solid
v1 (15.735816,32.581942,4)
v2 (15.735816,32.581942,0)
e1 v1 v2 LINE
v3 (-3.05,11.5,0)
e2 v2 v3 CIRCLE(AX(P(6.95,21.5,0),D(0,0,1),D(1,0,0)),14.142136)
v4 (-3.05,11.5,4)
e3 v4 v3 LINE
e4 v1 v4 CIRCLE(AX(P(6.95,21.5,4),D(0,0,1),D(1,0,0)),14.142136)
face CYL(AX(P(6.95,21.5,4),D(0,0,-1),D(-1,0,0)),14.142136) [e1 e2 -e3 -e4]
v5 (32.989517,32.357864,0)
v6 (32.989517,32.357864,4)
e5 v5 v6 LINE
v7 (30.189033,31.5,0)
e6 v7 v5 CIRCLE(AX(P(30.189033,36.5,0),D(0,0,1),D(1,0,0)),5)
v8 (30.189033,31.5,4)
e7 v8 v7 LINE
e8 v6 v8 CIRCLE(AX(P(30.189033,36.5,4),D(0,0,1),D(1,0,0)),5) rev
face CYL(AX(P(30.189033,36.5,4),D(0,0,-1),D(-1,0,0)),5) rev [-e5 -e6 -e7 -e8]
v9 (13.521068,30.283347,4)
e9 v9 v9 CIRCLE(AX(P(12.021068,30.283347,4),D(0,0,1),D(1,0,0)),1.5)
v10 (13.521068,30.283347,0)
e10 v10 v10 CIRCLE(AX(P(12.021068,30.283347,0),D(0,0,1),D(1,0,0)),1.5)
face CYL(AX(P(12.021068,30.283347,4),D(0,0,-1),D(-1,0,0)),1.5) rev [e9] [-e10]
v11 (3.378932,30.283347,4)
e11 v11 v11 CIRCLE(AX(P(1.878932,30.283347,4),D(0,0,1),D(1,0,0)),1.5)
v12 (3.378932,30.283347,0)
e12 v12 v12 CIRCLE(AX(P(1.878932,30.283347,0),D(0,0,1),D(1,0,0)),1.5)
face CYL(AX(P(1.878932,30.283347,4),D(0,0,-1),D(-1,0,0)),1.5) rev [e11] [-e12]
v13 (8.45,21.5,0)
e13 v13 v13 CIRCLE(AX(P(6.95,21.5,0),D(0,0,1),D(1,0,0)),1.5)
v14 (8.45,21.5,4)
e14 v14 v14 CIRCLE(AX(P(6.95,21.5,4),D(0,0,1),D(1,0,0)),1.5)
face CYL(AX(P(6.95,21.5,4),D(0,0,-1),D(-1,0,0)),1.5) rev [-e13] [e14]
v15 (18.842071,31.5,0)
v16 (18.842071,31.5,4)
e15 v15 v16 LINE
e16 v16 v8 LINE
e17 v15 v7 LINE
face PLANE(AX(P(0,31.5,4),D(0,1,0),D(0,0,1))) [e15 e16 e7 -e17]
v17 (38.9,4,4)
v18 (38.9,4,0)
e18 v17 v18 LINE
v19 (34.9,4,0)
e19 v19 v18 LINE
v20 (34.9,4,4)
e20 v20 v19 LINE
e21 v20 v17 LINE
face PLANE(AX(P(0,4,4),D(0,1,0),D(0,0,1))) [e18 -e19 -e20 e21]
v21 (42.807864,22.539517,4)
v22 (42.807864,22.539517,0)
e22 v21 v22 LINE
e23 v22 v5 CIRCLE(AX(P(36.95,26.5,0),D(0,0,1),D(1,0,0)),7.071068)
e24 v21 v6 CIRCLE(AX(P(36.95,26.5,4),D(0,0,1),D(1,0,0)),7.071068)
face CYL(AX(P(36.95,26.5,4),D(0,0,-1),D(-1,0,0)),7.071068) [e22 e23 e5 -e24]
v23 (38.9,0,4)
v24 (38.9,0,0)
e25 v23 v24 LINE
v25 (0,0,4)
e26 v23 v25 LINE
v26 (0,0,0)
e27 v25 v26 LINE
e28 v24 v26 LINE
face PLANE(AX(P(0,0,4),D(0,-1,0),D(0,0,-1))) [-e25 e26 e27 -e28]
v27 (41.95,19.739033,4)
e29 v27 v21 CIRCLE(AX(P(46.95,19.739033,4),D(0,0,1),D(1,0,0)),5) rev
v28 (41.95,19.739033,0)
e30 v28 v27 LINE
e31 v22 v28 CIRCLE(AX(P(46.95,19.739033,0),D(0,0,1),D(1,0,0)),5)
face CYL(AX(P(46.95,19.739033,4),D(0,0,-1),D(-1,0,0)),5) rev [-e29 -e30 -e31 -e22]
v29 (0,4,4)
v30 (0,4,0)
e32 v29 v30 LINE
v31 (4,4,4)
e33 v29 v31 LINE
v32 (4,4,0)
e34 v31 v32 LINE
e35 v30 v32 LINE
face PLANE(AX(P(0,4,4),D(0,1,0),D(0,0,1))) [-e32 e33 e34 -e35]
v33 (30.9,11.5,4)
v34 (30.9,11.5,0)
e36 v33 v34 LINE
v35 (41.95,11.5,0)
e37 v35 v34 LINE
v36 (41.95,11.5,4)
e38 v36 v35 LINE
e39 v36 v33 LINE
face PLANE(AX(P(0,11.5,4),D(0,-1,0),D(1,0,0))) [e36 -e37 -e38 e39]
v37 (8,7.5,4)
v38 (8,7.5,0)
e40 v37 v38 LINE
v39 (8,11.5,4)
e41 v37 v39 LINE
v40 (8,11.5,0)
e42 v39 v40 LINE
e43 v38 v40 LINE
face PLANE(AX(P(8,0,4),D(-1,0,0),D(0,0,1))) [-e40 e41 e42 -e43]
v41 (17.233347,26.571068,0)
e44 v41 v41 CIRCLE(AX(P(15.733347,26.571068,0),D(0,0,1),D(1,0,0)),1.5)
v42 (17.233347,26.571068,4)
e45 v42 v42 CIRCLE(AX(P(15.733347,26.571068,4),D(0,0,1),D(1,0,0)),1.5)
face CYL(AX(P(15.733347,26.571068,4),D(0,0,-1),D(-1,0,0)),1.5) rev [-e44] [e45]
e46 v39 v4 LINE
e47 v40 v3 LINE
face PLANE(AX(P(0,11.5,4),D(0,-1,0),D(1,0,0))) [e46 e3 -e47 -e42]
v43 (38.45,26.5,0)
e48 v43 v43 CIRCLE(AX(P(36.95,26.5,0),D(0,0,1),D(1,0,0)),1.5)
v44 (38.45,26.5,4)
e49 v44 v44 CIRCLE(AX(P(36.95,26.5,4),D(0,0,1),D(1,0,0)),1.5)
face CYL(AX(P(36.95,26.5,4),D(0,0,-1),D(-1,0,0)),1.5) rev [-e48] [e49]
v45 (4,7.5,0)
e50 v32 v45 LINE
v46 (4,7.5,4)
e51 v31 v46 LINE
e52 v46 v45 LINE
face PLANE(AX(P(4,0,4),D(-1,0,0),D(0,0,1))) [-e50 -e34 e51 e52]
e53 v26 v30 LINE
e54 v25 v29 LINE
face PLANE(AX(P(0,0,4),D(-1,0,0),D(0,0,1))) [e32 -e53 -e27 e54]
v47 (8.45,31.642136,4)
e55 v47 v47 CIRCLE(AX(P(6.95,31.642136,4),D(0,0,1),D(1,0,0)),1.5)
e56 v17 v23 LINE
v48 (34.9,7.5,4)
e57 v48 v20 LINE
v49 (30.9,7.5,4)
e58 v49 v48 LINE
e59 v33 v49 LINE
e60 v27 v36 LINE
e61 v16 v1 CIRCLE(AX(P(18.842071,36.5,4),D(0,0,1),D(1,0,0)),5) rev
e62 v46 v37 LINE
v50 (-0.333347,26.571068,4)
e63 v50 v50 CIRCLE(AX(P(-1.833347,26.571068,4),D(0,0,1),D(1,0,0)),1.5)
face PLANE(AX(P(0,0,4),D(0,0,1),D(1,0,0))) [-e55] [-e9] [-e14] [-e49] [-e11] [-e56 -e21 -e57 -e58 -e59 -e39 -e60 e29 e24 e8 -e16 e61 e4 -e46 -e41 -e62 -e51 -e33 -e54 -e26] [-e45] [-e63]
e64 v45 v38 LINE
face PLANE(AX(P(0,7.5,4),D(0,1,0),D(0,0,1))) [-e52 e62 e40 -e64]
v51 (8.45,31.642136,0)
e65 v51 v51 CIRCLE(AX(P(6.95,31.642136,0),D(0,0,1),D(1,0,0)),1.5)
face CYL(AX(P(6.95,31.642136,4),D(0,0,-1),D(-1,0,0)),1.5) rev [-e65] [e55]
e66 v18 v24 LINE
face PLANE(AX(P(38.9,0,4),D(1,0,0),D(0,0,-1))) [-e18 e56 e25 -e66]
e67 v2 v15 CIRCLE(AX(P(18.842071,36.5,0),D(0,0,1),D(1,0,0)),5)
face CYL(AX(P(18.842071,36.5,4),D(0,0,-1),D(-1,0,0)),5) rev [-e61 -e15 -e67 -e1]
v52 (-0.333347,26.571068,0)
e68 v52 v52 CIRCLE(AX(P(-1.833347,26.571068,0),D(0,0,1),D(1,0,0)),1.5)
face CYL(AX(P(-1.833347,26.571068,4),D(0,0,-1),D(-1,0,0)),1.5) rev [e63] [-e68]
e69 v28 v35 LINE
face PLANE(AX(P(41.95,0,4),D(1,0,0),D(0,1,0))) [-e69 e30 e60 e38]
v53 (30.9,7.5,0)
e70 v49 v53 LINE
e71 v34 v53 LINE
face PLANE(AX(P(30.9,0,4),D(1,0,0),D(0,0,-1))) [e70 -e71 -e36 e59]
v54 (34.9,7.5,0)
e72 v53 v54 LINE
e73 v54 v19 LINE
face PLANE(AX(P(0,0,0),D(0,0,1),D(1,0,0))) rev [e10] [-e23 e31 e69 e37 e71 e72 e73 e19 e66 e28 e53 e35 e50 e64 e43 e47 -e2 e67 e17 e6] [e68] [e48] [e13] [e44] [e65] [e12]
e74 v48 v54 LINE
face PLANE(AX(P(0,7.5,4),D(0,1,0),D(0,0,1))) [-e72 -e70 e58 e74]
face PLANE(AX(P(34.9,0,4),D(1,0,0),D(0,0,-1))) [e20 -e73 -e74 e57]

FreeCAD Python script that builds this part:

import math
import FreeCAD as App
import Part
import Sketcher

V = App.Vector


def edges_at(feature, points):
    """Names of the edges that pass closest to the given points."""
    edges = feature.Shape.Edges
    near = lambda p: min(range(len(edges)), key=lambda i: edges[i].distToShape(Part.Vertex(*p))[0])
    return sorted({f"Edge{near(p) + 1}" for p in points})

doc = App.newDocument("Part")
body = doc.addObject("PartDesign::Body", "Body")

sketch1 = body.newObject("Sketcher::SketchObject", "Sketch")
sketch1.AttachmentSupport = (doc.getObject("XY_Plane"), [""])
sketch1.MapMode = "FlatFace"
sketch1.addGeometry([
    Part.LineSegment(V(0, 4, 0), V(0, 0, 0)),
    Part.LineSegment(V(0, 0, 0), V(38.9, 0, 0)),
    Part.LineSegment(V(38.9, 0, 0), V(38.9, 4, 0)),
    Part.LineSegment(V(38.9, 4, 0), V(34.9, 4, 0)),
    Part.LineSegment(V(34.9, 4, 0), V(34.9, 7.5, 0)),
    Part.LineSegment(V(34.9, 7.5, 0), V(30.9, 7.5, 0)),
    Part.LineSegment(V(30.9, 7.5, 0), V(30.9, 11.5, 0)),
    Part.LineSegment(V(30.9, 11.5, 0), V(42, 11.5, 0)),
    Part.LineSegment(V(42, 11.5, 0), V(42, 21.5, 0)),
    Part.ArcOfCircle(Part.Circle(V(37, 26.5, 0), V(0, 0, 1), 7.1), math.radians(-45), math.radians(135)),
    Part.LineSegment(V(31.9, 31.5, 0), V(16.9, 31.5, 0)),
    Part.ArcOfCircle(Part.Circle(V(7, 21.5, 0), V(0, 0, 1), 14.1), math.radians(45), math.radians(225)),
    Part.LineSegment(V(-3, 11.5, 0), V(8, 11.5, 0)),
    Part.LineSegment(V(8, 11.5, 0), V(8, 7.5, 0)),
    Part.LineSegment(V(8, 7.5, 0), V(4, 7.5, 0)),
    Part.LineSegment(V(4, 7.5, 0), V(4, 4, 0)),
    Part.LineSegment(V(4, 4, 0), V(0, 4, 0)),
    Part.Circle(V(7, 21.5, 0), V(0, 0, 1), 1.5),
    Part.Circle(V(-1.8, 26.6, 0), V(0, 0, 1), 1.5),
    Part.Circle(V(15.7, 26.6, 0), V(0, 0, 1), 1.5),
    Part.Circle(V(37, 26.5, 0), V(0, 0, 1), 1.5),
    Part.Circle(V(1.9, 30.3, 0), V(0, 0, 1), 1.5),
    Part.Circle(V(7, 31.6, 0), V(0, 0, 1), 1.5),
    Part.Circle(V(12, 30.3, 0), V(0, 0, 1), 1.5),
], False)
sketch1.addConstraint([
    Sketcher.Constraint("Coincident", 0, 2, 1, 1),
    Sketcher.Constraint("Coincident", 1, 2, 2, 1),
    Sketcher.Constraint("Coincident", 2, 2, 3, 1),
    Sketcher.Constraint("Coincident", 3, 2, 4, 1),
    Sketcher.Constraint("Coincident", 4, 2, 5, 1),
    Sketcher.Constraint("Coincident", 5, 2, 6, 1),
    Sketcher.Constraint("Coincident", 6, 2, 7, 1),
    Sketcher.Constraint("Coincident", 7, 2, 8, 1),
    Sketcher.Constraint("Coincident", 8, 2, 9, 1),
    Sketcher.Constraint("Coincident", 9, 2, 10, 1),
    Sketcher.Constraint("Coincident", 10, 2, 11, 1),
    Sketcher.Constraint("Coincident", 11, 2, 12, 1),
    Sketcher.Constraint("Coincident", 12, 2, 13, 1),
    Sketcher.Constraint("Coincident", 13, 2, 14, 1),
    Sketcher.Constraint("Coincident", 14, 2, 15, 1),
    Sketcher.Constraint("Coincident", 15, 2, 16, 1),
    Sketcher.Constraint("Coincident", 16, 2, 0, 1),
    Sketcher.Constraint("Vertical", 0),
    Sketcher.Constraint("Horizontal", 1),
    Sketcher.Constraint("Vertical", 2),
    Sketcher.Constraint("Horizontal", 3),
    Sketcher.Constraint("Vertical", 4),
    Sketcher.Constraint("Horizontal", 5),
    Sketcher.Constraint("Vertical", 6),
    Sketcher.Constraint("Horizontal", 7),
    Sketcher.Constraint("Vertical", 8),
    Sketcher.Constraint("Horizontal", 10),
    Sketcher.Constraint("Horizontal", 12),
    Sketcher.Constraint("Vertical", 13),
    Sketcher.Constraint("Horizontal", 14),
    Sketcher.Constraint("Vertical", 15),
    Sketcher.Constraint("Horizontal", 16),
    Sketcher.Constraint("Coincident", 0, 2, -1, 1),
    Sketcher.Constraint("Coincident", 17, 3, 11, 3),
    Sketcher.Constraint("Coincident", 20, 3, 9, 3),
    Sketcher.Constraint("Equal", 17, 18),
    Sketcher.Constraint("Equal", 18, 19),
    Sketcher.Constraint("Equal", 19, 20),
    Sketcher.Constraint("Equal", 20, 21),
    Sketcher.Constraint("Equal", 21, 22),
    Sketcher.Constraint("Equal", 22, 23),
    Sketcher.Constraint("Horizontal", 18, 3, 19, 3),
    Sketcher.Constraint("Horizontal", 21, 3, 23, 3),
    Sketcher.Constraint("Horizontal", 17, 3, 8, 2),
    Sketcher.Constraint("Horizontal", 7, 2, 11, 2),
    Sketcher.Constraint("Horizontal", 5, 2, 13, 2),
    Sketcher.Constraint("Horizontal", 3, 2, 15, 2),
    Sketcher.Constraint("Vertical", 17, 3, 22, 3),
    Sketcher.Constraint("Equal", 3, 5),
    Sketcher.Constraint("Equal", 7, 12),
    Sketcher.Constraint("Equal", 5, 14),
    Sketcher.Constraint("Equal", 14, 16),
    Sketcher.Constraint("Equal", 16, 0),
    Sketcher.Constraint("Equal", 2, 6),
    Sketcher.Constraint("Diameter", 17, 3.0),
    Sketcher.Constraint("DistanceX", 3, 2, 3, 1, 4.0),
    Sketcher.Constraint("DistanceX", 10, 2, 10, 1, 15.0),
    Sketcher.Constraint("DistanceY", 8, 1, 8, 2, 10.0),
    Sketcher.Constraint("DistanceX", 1, 1, 1, 2, 38.9),
    Sketcher.Constraint("DistanceY", 4, 1, 4, 2, 3.5),
    Sketcher.Constraint("DistanceX", 11, 3, 9, 3, 30.0),
    Sketcher.Constraint("DistanceY", 11, 3, 9, 3, 5.0),
    Sketcher.Constraint("DistanceX", 9, 3, 8, 2, 5.0),
    Sketcher.Constraint("DistanceX", 9, 2, 9, 3, 5.0),
    Sketcher.Constraint("DistanceX", 18, 3, 21, 3, 3.712279),
    Sketcher.Constraint("DistanceY", 18, 3, 21, 3, 3.712279),
    Sketcher.Constraint("DistanceY", 21, 3, 22, 3, 1.358789),
    Sketcher.Constraint("DistanceX", 23, 3, 19, 3, 3.712279),
    Sketcher.Constraint("DistanceX", 18, 3, -1, 1, 1.833347),
    Sketcher.Constraint("DistanceY", -1, 1, 18, 3, 26.571068),
    Sketcher.Constraint("DistanceX", -1, 1, 19, 3, 15.733347),
])
pad1 = body.newObject("PartDesign::Pad", "Pad")
pad1.Profile = sketch1
pad1.Length = 4
doc.recompute()

fillet = body.newObject("PartDesign::Fillet", "Fillet")
fillet.Base = (pad1, edges_at(pad1, [(16.95, 31.5, 2), (31.95, 31.5, 2), (41.95, 21.5, 2)]))
fillet.Radius = 5

doc.recompute()
